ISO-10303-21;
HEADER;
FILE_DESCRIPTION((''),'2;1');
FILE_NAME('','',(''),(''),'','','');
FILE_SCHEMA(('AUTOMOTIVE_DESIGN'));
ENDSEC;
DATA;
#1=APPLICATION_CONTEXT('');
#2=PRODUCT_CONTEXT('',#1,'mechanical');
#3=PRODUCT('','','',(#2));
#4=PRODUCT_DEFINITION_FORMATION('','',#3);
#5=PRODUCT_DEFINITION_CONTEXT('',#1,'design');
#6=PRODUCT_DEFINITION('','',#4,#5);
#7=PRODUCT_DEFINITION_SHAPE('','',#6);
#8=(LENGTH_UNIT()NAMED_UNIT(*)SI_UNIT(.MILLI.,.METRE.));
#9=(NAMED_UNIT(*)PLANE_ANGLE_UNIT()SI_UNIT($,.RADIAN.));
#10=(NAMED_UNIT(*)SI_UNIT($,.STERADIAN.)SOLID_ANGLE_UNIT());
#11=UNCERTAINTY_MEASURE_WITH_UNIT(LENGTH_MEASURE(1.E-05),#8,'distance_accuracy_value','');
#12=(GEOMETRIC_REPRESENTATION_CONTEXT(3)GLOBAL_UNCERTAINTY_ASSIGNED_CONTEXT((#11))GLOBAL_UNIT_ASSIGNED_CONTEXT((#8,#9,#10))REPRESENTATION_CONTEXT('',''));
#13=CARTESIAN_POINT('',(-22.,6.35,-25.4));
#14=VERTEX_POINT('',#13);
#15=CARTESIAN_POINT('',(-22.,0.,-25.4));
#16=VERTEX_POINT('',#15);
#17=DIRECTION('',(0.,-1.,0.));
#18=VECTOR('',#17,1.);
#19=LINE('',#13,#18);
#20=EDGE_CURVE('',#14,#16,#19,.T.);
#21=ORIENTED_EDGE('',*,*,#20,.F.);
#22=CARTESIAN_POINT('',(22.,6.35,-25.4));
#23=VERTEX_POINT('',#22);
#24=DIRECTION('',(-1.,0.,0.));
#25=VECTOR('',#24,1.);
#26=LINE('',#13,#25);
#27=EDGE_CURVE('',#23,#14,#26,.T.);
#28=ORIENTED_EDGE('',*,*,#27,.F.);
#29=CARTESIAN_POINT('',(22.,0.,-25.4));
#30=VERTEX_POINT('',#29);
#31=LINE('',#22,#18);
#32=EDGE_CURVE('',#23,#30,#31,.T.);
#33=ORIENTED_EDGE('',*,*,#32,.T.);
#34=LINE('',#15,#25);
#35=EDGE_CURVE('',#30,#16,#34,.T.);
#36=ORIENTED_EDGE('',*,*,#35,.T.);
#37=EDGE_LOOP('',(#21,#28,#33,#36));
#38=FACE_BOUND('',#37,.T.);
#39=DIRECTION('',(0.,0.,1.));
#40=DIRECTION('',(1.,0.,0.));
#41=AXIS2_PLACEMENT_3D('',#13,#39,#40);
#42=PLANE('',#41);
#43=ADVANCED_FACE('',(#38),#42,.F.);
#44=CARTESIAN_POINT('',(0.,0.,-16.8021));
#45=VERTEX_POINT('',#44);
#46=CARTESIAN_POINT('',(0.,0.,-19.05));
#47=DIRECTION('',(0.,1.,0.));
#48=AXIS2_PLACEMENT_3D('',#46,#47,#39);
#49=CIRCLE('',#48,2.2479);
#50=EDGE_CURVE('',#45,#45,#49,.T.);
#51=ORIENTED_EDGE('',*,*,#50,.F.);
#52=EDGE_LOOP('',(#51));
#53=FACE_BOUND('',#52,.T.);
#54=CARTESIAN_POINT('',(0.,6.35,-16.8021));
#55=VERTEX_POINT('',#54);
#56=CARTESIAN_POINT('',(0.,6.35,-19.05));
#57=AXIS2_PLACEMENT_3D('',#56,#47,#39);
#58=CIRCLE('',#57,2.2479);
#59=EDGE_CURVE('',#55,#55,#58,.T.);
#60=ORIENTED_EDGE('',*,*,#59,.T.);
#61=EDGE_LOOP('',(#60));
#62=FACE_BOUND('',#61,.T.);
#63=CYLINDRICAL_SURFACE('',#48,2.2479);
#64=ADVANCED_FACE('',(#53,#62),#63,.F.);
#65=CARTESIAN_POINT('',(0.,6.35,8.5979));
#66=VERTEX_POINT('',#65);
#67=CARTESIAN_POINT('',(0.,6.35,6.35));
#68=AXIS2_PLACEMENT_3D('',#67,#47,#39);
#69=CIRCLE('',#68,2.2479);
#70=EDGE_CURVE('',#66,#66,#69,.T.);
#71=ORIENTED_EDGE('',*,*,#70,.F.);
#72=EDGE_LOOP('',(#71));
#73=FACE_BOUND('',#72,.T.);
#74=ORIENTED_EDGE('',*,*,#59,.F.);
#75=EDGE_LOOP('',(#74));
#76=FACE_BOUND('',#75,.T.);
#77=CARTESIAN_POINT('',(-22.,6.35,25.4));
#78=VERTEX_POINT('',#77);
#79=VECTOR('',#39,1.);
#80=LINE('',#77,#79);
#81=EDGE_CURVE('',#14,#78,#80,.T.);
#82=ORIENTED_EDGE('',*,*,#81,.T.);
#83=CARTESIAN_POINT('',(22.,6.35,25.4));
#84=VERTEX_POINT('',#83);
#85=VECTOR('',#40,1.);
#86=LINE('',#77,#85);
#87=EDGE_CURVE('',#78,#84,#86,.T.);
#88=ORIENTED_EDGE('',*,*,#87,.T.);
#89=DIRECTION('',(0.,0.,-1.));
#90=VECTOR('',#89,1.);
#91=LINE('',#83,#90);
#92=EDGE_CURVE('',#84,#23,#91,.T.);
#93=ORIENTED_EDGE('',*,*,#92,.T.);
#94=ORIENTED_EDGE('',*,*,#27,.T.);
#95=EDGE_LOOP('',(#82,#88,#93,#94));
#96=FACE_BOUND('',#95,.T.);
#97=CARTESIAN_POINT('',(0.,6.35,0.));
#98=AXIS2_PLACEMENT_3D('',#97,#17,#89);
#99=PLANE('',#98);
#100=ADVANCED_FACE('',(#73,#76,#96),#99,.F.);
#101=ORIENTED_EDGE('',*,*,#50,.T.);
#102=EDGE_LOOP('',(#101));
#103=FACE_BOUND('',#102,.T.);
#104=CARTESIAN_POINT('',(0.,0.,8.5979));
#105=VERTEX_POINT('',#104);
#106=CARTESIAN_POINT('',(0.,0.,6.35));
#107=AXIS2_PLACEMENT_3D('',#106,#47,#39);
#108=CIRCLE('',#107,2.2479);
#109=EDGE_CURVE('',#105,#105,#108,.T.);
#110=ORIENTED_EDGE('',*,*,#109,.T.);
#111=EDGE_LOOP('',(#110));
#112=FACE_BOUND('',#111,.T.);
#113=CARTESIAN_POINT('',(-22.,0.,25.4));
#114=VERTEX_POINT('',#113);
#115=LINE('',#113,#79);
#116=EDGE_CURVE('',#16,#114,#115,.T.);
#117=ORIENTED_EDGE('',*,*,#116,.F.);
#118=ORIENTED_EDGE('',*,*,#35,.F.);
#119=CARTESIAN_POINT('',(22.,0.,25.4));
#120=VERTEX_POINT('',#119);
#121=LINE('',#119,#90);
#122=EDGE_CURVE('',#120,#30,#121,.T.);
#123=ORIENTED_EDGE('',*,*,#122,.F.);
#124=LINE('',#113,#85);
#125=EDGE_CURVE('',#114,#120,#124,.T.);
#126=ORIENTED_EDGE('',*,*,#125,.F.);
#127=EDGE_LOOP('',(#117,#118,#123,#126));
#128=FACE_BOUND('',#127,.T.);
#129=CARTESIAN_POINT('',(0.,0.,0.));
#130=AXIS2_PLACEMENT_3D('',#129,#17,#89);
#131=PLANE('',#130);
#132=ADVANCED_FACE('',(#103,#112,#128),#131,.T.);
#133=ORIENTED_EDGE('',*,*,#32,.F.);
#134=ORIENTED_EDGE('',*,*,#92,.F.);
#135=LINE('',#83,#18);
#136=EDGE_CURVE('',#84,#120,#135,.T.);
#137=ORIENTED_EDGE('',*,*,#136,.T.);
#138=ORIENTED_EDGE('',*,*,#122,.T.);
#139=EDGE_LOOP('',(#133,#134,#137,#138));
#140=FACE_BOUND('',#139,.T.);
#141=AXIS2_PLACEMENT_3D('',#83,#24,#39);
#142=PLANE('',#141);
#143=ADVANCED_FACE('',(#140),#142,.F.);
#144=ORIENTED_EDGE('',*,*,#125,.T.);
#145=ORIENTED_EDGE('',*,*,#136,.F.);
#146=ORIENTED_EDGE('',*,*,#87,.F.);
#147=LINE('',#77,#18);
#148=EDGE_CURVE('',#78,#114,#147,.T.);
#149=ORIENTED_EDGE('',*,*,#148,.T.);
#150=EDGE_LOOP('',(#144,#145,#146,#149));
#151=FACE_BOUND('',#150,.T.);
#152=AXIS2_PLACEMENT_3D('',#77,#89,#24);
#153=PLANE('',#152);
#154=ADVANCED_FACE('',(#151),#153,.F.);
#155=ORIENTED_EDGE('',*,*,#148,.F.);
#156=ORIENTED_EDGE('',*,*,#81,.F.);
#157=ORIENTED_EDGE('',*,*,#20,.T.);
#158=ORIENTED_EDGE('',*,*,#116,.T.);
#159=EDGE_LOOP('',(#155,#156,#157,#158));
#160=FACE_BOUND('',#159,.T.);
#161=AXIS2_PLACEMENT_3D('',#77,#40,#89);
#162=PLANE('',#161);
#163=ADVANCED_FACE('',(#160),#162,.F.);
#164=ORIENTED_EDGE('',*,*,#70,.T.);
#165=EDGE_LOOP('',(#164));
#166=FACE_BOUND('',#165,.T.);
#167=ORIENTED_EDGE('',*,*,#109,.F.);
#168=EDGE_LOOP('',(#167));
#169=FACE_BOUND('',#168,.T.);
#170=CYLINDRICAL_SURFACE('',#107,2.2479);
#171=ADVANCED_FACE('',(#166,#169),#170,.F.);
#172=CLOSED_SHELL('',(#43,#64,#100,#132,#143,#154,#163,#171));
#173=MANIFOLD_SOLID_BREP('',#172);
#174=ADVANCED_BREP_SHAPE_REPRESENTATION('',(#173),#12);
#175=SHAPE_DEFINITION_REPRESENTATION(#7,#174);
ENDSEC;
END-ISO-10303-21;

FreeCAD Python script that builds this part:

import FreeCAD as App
import Part
import Sketcher
Q = App.Units.Quantity


def add_polygon(sketch, points):
    """Adds a closed chain of lines whose ends are joined by coincident constraints."""
    first, n = sketch.GeometryCount, len(points)
    for a, b in zip(points, points[1:] + points[:1]):
        sketch.addGeometry(Part.LineSegment(App.Vector(*a, 0), App.Vector(*b, 0)), False)
    for i in range(n):
        sketch.addConstraint(Sketcher.Constraint("Coincident", first + i, 2, first + (i + 1) % n, 1))

doc = App.newDocument("Part")
body = doc.addObject("PartDesign::Body", "Body")

# Sketch on XZ plane
sketch1 = body.newObject("Sketcher::SketchObject", "Sketch")
sketch1.AttachmentSupport = (doc.getObject("XZ_Plane"), [""])
sketch1.MapMode = "FlatFace"
add_polygon(sketch1, [(-22, -25.4), (-22, 25.4), (22, 25.4), (22, -25.4)])  # lines 0-3
sketch1.addConstraint([
    Sketcher.Constraint("Vertical", 0),
    Sketcher.Constraint("Horizontal", 1),
    Sketcher.Constraint("Vertical", 2),
    Sketcher.Constraint("Horizontal", 3),
    Sketcher.Constraint("Symmetric", 0, 2, 2, 2, -1, 1),
    Sketcher.Constraint("DistanceY", 0, 1, 0, 2, Q("2 in")),
    Sketcher.Constraint("DistanceX", 1, 1, 1, 2, Q("44 mm")),
])
pad1 = body.newObject("PartDesign::Pad", "Pad")
pad1.Profile = sketch1
pad1.Length = Q("0.25 in")
pad1.Reversed = True

# Sketch on XZ plane
sketch2 = body.newObject("Sketcher::SketchObject", "Sketch001")
sketch2.AttachmentSupport = (doc.getObject("XZ_Plane"), [""])
sketch2.MapMode = "FlatFace"
sketch2.AttachmentOffset = App.Placement(App.Vector(0, 0, -0.25 * 25.4), App.Rotation())
sketch2.addGeometry([
    Part.Circle(App.Vector(0, -19.05, 0), App.Vector(0, 0, 1), 2.2479),
    Part.Circle(App.Vector(0, 6.35, 0), App.Vector(0, 0, 1), 2.2479),
], False)
sketch2.addConstraint([
    Sketcher.Constraint("Equal", 0, 1),
    Sketcher.Constraint("PointOnObject", 0, 3, -2),
    Sketcher.Constraint("PointOnObject", 1, 3, -2),
    Sketcher.Constraint("Diameter", 0, Q("0.177 in")),
    Sketcher.Constraint("DistanceY", 0, 3, 1, 3, Q("1 in")),
    Sketcher.Constraint("DistanceY", 0, 3, -1, 1, Q("0.75 in")),
])
pocket1 = body.newObject("PartDesign::Pocket", "Pocket")
pocket1.Profile = sketch2
pocket1.Type = "ThroughAll"
pocket1.Reversed = True

doc.recompute()
